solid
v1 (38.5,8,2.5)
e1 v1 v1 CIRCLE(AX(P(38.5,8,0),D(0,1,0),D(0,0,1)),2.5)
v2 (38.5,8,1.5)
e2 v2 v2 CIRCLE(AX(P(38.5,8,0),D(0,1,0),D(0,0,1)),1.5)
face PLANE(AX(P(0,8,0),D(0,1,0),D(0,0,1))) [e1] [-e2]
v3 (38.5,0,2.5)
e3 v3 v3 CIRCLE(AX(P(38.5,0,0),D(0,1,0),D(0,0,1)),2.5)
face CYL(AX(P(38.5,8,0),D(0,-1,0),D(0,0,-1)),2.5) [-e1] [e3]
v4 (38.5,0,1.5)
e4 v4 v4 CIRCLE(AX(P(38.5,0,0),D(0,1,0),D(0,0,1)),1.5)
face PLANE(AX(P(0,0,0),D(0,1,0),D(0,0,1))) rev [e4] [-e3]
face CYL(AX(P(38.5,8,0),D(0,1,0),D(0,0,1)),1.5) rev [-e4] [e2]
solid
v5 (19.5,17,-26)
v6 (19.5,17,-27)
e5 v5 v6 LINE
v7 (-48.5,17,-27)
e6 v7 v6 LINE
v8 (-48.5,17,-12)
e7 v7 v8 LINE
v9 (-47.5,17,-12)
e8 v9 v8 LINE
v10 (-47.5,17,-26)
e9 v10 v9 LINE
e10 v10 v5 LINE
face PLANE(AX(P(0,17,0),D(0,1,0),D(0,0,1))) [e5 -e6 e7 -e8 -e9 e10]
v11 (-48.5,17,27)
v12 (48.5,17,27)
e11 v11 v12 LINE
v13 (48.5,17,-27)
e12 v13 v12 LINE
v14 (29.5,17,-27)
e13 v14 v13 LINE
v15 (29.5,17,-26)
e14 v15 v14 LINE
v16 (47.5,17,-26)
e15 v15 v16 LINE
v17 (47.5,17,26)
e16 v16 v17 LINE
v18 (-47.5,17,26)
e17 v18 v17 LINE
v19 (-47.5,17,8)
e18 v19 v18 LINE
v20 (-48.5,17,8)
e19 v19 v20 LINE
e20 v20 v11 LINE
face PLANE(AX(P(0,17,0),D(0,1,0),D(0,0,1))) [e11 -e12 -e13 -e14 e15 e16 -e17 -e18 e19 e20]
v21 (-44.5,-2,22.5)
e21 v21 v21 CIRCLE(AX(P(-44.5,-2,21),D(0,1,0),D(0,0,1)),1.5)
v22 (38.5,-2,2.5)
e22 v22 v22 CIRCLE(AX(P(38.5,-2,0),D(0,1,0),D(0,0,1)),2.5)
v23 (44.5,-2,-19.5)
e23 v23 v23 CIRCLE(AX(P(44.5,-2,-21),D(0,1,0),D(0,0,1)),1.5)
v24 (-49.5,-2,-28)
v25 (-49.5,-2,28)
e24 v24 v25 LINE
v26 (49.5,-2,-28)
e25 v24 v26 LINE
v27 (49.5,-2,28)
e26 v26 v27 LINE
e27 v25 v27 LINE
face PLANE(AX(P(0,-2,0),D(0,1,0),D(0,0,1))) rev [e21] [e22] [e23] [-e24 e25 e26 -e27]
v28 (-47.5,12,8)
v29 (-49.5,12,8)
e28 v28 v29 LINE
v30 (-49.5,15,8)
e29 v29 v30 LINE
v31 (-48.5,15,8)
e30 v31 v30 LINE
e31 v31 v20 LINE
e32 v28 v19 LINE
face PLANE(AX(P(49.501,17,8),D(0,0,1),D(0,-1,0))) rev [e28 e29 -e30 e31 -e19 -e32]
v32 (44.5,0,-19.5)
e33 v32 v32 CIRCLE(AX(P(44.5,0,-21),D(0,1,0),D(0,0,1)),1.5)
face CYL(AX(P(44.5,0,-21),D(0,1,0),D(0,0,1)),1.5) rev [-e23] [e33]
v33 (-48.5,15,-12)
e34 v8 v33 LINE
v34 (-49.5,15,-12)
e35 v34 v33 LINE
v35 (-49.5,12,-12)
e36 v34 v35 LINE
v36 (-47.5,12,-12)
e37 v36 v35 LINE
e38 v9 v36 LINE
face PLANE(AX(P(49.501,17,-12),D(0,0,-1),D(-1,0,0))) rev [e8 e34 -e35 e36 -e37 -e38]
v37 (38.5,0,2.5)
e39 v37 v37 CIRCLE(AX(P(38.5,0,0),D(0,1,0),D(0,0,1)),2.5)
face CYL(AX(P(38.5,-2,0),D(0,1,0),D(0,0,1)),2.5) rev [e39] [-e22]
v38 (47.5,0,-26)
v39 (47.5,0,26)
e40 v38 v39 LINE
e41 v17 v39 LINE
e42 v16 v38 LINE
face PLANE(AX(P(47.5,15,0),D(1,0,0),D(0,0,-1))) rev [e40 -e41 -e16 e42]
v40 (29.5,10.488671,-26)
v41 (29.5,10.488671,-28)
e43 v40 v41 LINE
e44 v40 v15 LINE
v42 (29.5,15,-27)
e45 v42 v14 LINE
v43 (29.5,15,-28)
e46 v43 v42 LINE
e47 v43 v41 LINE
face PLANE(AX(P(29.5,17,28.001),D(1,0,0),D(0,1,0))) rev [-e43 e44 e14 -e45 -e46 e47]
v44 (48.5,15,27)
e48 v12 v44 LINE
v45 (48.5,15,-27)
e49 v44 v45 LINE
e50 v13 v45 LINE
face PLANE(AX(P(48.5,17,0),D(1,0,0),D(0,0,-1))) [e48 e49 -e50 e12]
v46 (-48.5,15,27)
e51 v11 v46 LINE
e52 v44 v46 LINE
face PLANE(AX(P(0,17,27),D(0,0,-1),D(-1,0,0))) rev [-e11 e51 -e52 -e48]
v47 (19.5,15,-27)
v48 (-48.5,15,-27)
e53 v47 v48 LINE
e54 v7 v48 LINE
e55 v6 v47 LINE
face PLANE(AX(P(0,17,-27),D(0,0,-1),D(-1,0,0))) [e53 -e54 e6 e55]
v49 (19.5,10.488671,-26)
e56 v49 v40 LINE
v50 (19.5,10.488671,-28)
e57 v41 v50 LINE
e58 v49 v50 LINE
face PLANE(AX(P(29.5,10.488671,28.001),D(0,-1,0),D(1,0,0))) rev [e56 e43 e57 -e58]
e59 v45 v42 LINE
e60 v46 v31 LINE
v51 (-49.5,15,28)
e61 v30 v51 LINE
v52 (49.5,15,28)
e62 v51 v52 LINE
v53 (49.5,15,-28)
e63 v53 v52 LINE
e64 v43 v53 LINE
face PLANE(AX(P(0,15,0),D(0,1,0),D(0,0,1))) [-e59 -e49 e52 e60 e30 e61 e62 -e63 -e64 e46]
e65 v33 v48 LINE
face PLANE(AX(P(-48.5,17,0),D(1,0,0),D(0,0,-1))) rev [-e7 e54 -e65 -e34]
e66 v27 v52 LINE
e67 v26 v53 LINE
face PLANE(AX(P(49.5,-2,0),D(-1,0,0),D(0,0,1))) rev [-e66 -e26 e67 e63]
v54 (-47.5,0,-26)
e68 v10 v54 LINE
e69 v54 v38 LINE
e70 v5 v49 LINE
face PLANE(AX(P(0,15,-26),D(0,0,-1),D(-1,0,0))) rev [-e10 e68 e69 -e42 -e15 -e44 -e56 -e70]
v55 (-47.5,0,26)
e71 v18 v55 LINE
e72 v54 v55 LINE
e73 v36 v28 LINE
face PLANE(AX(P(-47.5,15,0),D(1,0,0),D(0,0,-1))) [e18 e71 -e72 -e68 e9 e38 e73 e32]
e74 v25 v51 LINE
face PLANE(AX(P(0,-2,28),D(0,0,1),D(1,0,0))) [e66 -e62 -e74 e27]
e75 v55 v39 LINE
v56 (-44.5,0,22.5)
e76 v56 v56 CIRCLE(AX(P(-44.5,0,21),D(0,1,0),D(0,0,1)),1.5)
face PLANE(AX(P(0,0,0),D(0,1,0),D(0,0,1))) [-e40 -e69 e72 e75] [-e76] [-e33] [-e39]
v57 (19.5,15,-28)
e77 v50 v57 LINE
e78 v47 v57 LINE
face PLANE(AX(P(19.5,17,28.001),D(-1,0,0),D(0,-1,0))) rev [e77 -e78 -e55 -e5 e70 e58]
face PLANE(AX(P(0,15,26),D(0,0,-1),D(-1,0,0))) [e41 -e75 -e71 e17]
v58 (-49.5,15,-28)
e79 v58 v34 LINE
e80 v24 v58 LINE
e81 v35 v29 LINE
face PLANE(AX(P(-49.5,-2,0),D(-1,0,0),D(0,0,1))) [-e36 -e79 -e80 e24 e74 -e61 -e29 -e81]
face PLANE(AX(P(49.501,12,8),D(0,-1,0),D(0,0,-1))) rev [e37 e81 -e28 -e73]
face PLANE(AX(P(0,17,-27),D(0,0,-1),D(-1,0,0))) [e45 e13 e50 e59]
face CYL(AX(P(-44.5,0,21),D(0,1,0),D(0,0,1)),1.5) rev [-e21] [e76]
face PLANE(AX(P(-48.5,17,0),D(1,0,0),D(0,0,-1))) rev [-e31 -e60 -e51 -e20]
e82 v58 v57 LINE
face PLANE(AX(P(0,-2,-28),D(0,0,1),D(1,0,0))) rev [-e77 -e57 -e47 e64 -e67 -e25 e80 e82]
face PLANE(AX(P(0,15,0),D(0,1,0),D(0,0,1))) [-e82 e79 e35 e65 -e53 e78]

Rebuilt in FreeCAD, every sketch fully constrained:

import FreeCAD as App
import Part
import Sketcher
from FreeCAD import Vector
Q = App.Units.Quantity

doc = App.newDocument("Part")
body = doc.addObject("PartDesign::Body", "Body")

# Sketch on XZ plane
sketch1 = body.newObject("Sketcher::SketchObject", "Sketch")
sketch1.AttachmentSupport = (doc.getObject("XZ_Plane"), [""])
sketch1.MapMode = "FlatFace"
sketch1.addGeometry(Part.Circle(Vector(38.5, 0, 0), Vector(0, 0, 1), 2.5), False)
sketch1.addConstraint([
    Sketcher.Constraint("PointOnObject", 0, 3, -1),
    Sketcher.Constraint("Diameter", 0, Q("5 mm")),
    Sketcher.Constraint("DistanceX", -1, 1, 0, 3, Q("38.5 mm")),
])
pad1 = body.newObject("PartDesign::Pad", "Pad")
pad1.Profile = sketch1
pad1.Length = 8
pad1.Reversed = True

# Sketch on YZ plane
sketch2 = body.newObject("Sketcher::SketchObject", "Sketch001")
sketch2.AttachmentSupport = (doc.getObject("YZ_Plane"), [""])
sketch2.MapMode = "FlatFace"
sketch2.AttachmentOffset = App.Placement(Vector(0, 0, 38.5), App.Rotation())
sketch2.addGeometry([
    Part.LineSegment(Vector(-2, 0, 0), Vector(8, 0, 0)),
    Part.LineSegment(Vector(8, 0, 0), Vector(8, 1.5, 0)),
    Part.LineSegment(Vector(8, 1.5, 0), Vector(-2, 1.5, 0)),
    Part.LineSegment(Vector(-2, 1.5, 0), Vector(-2, 0, 0)),
], False)
sketch2.addConstraint([
    Sketcher.Constraint("Coincident", 0, 2, 1, 1),
    Sketcher.Constraint("Coincident", 1, 2, 2, 1),
    Sketcher.Constraint("Coincident", 2, 2, 3, 1),
    Sketcher.Constraint("Coincident", 3, 2, 0, 1),
    Sketcher.Constraint("Horizontal", 0),
    Sketcher.Constraint("Vertical", 1),
    Sketcher.Constraint("Horizontal", 2),
    Sketcher.Constraint("Vertical", 3),
    Sketcher.Constraint("PointOnObject", 0, 2, -1),
    Sketcher.Constraint("DistanceX", 0, 1, 0, 2, Q("10 mm")),
    Sketcher.Constraint("DistanceY", 1, 1, 1, 2, Q("1.5 mm")),
    Sketcher.Constraint("DistanceX", -1, 1, 0, 2, Q("8 mm")),
])
groove = body.newObject("PartDesign::Groove", "Groove")
groove.Profile = sketch2
groove.ReferenceAxis = (sketch2, ["H_Axis"])
groove.Angle = 360
body2 = doc.addObject("PartDesign::Body", "Body001")

# Sketch on XZ plane
sketch3 = body2.newObject("Sketcher::SketchObject", "Sketch002")
sketch3.AttachmentSupport = (doc.getObject("XZ_Plane001"), [""])
sketch3.MapMode = "FlatFace"
sketch3.addGeometry([
    Part.LineSegment(Vector(-49.5, -28, 0), Vector(-49.5, 28, 0)),  # 0
    Part.LineSegment(Vector(-49.5, 28, 0), Vector(49.5, 28, 0)),  # 1
    Part.LineSegment(Vector(49.5, 28, 0), Vector(49.5, -28, 0)),  # 2
    Part.LineSegment(Vector(49.5, -28, 0), Vector(-49.5, -28, 0)),  # 3
    Part.Circle(Vector(38.5, 0, 0), Vector(0, 0, 1), 2.5),  # 4
], False)
sketch3.addConstraint([
    Sketcher.Constraint("Coincident", 0, 2, 1, 1),
    Sketcher.Constraint("Coincident", 1, 2, 2, 1),
    Sketcher.Constraint("Coincident", 2, 2, 3, 1),
    Sketcher.Constraint("Coincident", 3, 2, 0, 1),
    Sketcher.Constraint("Vertical", 0),
    Sketcher.Constraint("Horizontal", 1),
    Sketcher.Constraint("Vertical", 2),
    Sketcher.Constraint("Horizontal", 3),
    Sketcher.Constraint("Symmetric", 0, 2, 2, 2, -1, 1),
    Sketcher.Constraint("PointOnObject", 4, 3, -1),
    Sketcher.Constraint("Diameter", 4, Q("5 mm")),
    Sketcher.Constraint("DistanceX", 1, 1, 1, 2, Q("99 mm")),
    Sketcher.Constraint("DistanceY", 0, 1, 0, 2, Q("56 mm")),
    Sketcher.Constraint("DistanceX", 0, 2, 4, 3, Q("88 mm")),
])
pad2 = body2.newObject("PartDesign::Pad", "Pad001")
pad2.Profile = sketch3
pad2.Length = 2

# Sketch on XZ plane
sketch4 = body2.newObject("Sketcher::SketchObject", "Sketch003")
sketch4.AttachmentSupport = (doc.getObject("XZ_Plane001"), [""])
sketch4.MapMode = "FlatFace"
sketch4.addGeometry([
    Part.LineSegment(Vector(-50, -28, 0), Vector(-50, 28, 0)),  # 0
    Part.LineSegment(Vector(-50, 28, 0), Vector(50, 28, 0)),  # 1
    Part.LineSegment(Vector(50, 28, 0), Vector(50, -28, 0)),  # 2
    Part.LineSegment(Vector(50, -28, 0), Vector(-50, -28, 0)),  # 3
    Part.LineSegment(Vector(48, 26, 0), Vector(-48, 26, 0)),  # 4
    Part.LineSegment(Vector(-48, 26, 0), Vector(-48, -26, 0)),  # 5
    Part.LineSegment(Vector(-48, -26, 0), Vector(48, -26, 0)),  # 6
    Part.LineSegment(Vector(48, -26, 0), Vector(48, 26, 0)),  # 7
], False)
sketch4.addConstraint([
    Sketcher.Constraint("Coincident", 0, 2, 1, 1),
    Sketcher.Constraint("Coincident", 1, 2, 2, 1),
    Sketcher.Constraint("Coincident", 2, 2, 3, 1),
    Sketcher.Constraint("Coincident", 3, 2, 0, 1),
    Sketcher.Constraint("Coincident", 4, 2, 5, 1),
    Sketcher.Constraint("Coincident", 5, 2, 6, 1),
    Sketcher.Constraint("Coincident", 6, 2, 7, 1),
    Sketcher.Constraint("Coincident", 7, 2, 4, 1),
    Sketcher.Constraint("Vertical", 0),
    Sketcher.Constraint("Horizontal", 1),
    Sketcher.Constraint("Vertical", 2),
    Sketcher.Constraint("Horizontal", 3),
    Sketcher.Constraint("Horizontal", 4),
    Sketcher.Constraint("Vertical", 5),
    Sketcher.Constraint("Horizontal", 6),
    Sketcher.Constraint("Vertical", 7),
    Sketcher.Constraint("Symmetric", 0, 2, 2, 2, -1, 1),
    Sketcher.Constraint("Symmetric", 4, 2, 6, 2, -1, 1),
    Sketcher.Constraint("DistanceX", 1, 1, 1, 2, Q("99 mm")),
    Sketcher.Constraint("DistanceX", 4, 2, 4, 1, Q("95 mm")),
    Sketcher.Constraint("DistanceY", 0, 1, 0, 2, Q("56 mm")),
    Sketcher.Constraint("DistanceY", 5, 2, 5, 1, Q("52 mm")),
])
pad3 = body2.newObject("PartDesign::Pad", "Pad002")
pad3.Profile = sketch4
pad3.Length = 15
pad3.Reversed = True

# Sketch on XZ plane
sketch5 = body2.newObject("Sketcher::SketchObject", "Sketch004")
sketch5.AttachmentSupport = (doc.getObject("XZ_Plane001"), [""])
sketch5.MapMode = "FlatFace"
sketch5.addGeometry([
    Part.LineSegment(Vector(-48, -27, 0), Vector(-48, 27, 0)),  # 0
    Part.LineSegment(Vector(-48, 27, 0), Vector(48, 27, 0)),  # 1
    Part.LineSegment(Vector(48, 27, 0), Vector(48, -27, 0)),  # 2
    Part.LineSegment(Vector(48, -27, 0), Vector(-48, -27, 0)),  # 3
    Part.LineSegment(Vector(48, 26, 0), Vector(-48, 26, 0)),  # 4
    Part.LineSegment(Vector(-48, 26, 0), Vector(-48, -26, 0)),  # 5
    Part.LineSegment(Vector(-48, -26, 0), Vector(48, -26, 0)),  # 6
    Part.LineSegment(Vector(48, -26, 0), Vector(48, 26, 0)),  # 7
], False)
sketch5.addConstraint([
    Sketcher.Constraint("Coincident", 0, 2, 1, 1),
    Sketcher.Constraint("Coincident", 1, 2, 2, 1),
    Sketcher.Constraint("Coincident", 2, 2, 3, 1),
    Sketcher.Constraint("Coincident", 3, 2, 0, 1),
    Sketcher.Constraint("Coincident", 4, 2, 5, 1),
    Sketcher.Constraint("Coincident", 5, 2, 6, 1),
    Sketcher.Constraint("Coincident", 6, 2, 7, 1),
    Sketcher.Constraint("Coincident", 7, 2, 4, 1),
    Sketcher.Constraint("Vertical", 0),
    Sketcher.Constraint("Horizontal", 1),
    Sketcher.Constraint("Vertical", 2),
    Sketcher.Constraint("Horizontal", 3),
    Sketcher.Constraint("Horizontal", 4),
    Sketcher.Constraint("Vertical", 5),
    Sketcher.Constraint("Horizontal", 6),
    Sketcher.Constraint("Vertical", 7),
    Sketcher.Constraint("Symmetric", 0, 2, 2, 2, -1, 1),
    Sketcher.Constraint("Symmetric", 4, 2, 6, 2, -1, 1),
    Sketcher.Constraint("DistanceX", 1, 1, 1, 2, Q("97 mm")),
    Sketcher.Constraint("DistanceX", 4, 2, 4, 1, Q("95 mm")),
    Sketcher.Constraint("DistanceY", 0, 1, 0, 2, Q("54 mm")),
    Sketcher.Constraint("DistanceY", 5, 2, 5, 1, Q("52 mm")),
])
pad4 = body2.newObject("PartDesign::Pad", "Pad003")
pad4.Profile = sketch5
pad4.Length = 17
pad4.Reversed = True

# Sketch on YZ plane
sketch6 = body2.newObject("Sketcher::SketchObject", "Sketch005")
sketch6.AttachmentSupport = (doc.getObject("YZ_Plane001"), [""])
sketch6.MapMode = "FlatFace"
sketch6.AttachmentOffset = App.Placement(Vector(0, 0, -44.5), App.Rotation())
sketch6.addGeometry([
    Part.LineSegment(Vector(-2, 21, 0), Vector(0, 21, 0)),
    Part.LineSegment(Vector(0, 21, 0), Vector(0, 22.5, 0)),
    Part.LineSegment(Vector(0, 22.5, 0), Vector(-2, 22.5, 0)),
    Part.LineSegment(Vector(-2, 22.5, 0), Vector(-2, 21, 0)),
], False)
sketch6.addGeometry(Part.LineSegment(Vector(0, 21, 0), Vector(-2, 21, 0)), True)  # axis
sketch6.addConstraint([
    Sketcher.Constraint("Coincident", 0, 2, 1, 1),
    Sketcher.Constraint("Coincident", 1, 2, 2, 1),
    Sketcher.Constraint("Coincident", 2, 2, 3, 1),
    Sketcher.Constraint("Coincident", 3, 2, 0, 1),
    Sketcher.Constraint("Horizontal", 0),
    Sketcher.Constraint("Vertical", 1),
    Sketcher.Constraint("Horizontal", 2),
    Sketcher.Constraint("Vertical", 3),
    Sketcher.Constraint("Horizontal", 4),
    Sketcher.Constraint("Coincident", 4, 1, 0, 2),
    Sketcher.Constraint("PointOnObject", 0, 2, -2),
    Sketcher.Constraint("Vertical", 2, 2, 4, 2),
    Sketcher.Constraint("DistanceX", 0, 1, 0, 2, Q("2 mm")),
    Sketcher.Constraint("DistanceY", 1, 1, 1, 2, Q("1.5 mm")),
    Sketcher.Constraint("DistanceY", -1, 1, 0, 2, Q("21 mm")),
])
groove2 = body2.newObject("PartDesign::Groove", "Groove001")
groove2.Profile = sketch6
groove2.ReferenceAxis = (sketch6, ["Axis0"])
groove2.Angle = 360
doc.recompute()

datumline = body2.newObject("PartDesign::Line", "DatumLine")
datumline.Placement = App.Placement(Vector(0, 0, 0), App.Rotation(Vector(0, 0, 1), Vector(0.904357603, 0, -0.426775498)))
linearpattern = body2.newObject("PartDesign::LinearPattern", "LinearPattern")
linearpattern.Originals = [groove2]
linearpattern.Direction = (datumline, [""])
linearpattern.Mode = "offset"
linearpattern.Offset = 98.412398
linearpattern.Occurrences = 2
body2.Tip = linearpattern

# Sketch on YZ plane
sketch7 = body2.newObject("Sketcher::SketchObject", "Sketch006")
sketch7.AttachmentSupport = (doc.getObject("YZ_Plane001"), [""])
sketch7.MapMode = "FlatFace"
sketch7.AttachmentOffset = App.Placement(Vector(0, 0, -47.5), App.Rotation())
sketch7.addGeometry([
    Part.LineSegment(Vector(17, -12, 0), Vector(12, -12, 0)),
    Part.LineSegment(Vector(12, -12, 0), Vector(12, 8, 0)),
    Part.LineSegment(Vector(12, 8, 0), Vector(17, 8, 0)),
    Part.LineSegment(Vector(17, 8, 0), Vector(17, -12, 0)),
], False)
sketch7.addConstraint([
    Sketcher.Constraint("Coincident", 0, 2, 1, 1),
    Sketcher.Constraint("Coincident", 1, 2, 2, 1),
    Sketcher.Constraint("Coincident", 2, 2, 3, 1),
    Sketcher.Constraint("Coincident", 3, 2, 0, 1),
    Sketcher.Constraint("Horizontal", 0),
    Sketcher.Constraint("Vertical", 1),
    Sketcher.Constraint("Horizontal", 2),
    Sketcher.Constraint("Vertical", 3),
    Sketcher.Constraint("DistanceX", 0, 2, 0, 1, Q("5 mm")),
    Sketcher.Constraint("DistanceY", 1, 1, 1, 2, Q("20 mm")),
    Sketcher.Constraint("DistanceX", -1, 1, 0, 2, Q("12 mm")),
    Sketcher.Constraint("DistanceY", 0, 2, -1, 1, Q("12 mm")),
])
pocket1 = body2.newObject("PartDesign::Pocket", "Pocket")
pocket1.Profile = sketch7
pocket1.Length = 2

# Sketch on XY plane
sketch8 = body2.newObject("Sketcher::SketchObject", "Sketch007")
sketch8.AttachmentSupport = (doc.getObject("XY_Plane001"), [""])
sketch8.MapMode = "FlatFace"
sketch8.AttachmentOffset = App.Placement(Vector(0, 0, -26), App.Rotation())
sketch8.addGeometry([
    Part.LineSegment(Vector(30, 17, 0), Vector(30, 10, 0)),
    Part.LineSegment(Vector(30, 10, 0), Vector(20, 10, 0)),
    Part.LineSegment(Vector(20, 10, 0), Vector(20, 17, 0)),
    Part.LineSegment(Vector(20, 17, 0), Vector(30, 17, 0)),
], False)
sketch8.addConstraint([
    Sketcher.Constraint("Coincident", 0, 2, 1, 1),
    Sketcher.Constraint("Coincident", 1, 2, 2, 1),
    Sketcher.Constraint("Coincident", 2, 2, 3, 1),
    Sketcher.Constraint("Coincident", 3, 2, 0, 1),
    Sketcher.Constraint("Vertical", 0),
    Sketcher.Constraint("Horizontal", 1),
    Sketcher.Constraint("Vertical", 2),
    Sketcher.Constraint("Horizontal", 3),
    Sketcher.Constraint("DistanceX", 1, 2, 1, 1, Q("10 mm")),
    Sketcher.Constraint("DistanceY", -1, 1, 2, 2, Q("17 mm")),
    Sketcher.Constraint("DistanceX", -1, 1, 0, 2, Q("29.5 mm")),
    Sketcher.Constraint("DistanceY", 0, 2, 0, 1, Q("6.511329 mm")),
])
pocket2 = body2.newObject("PartDesign::Pocket", "Pocket001")
pocket2.Profile = sketch8
pocket2.Length = 2

doc.recompute()
